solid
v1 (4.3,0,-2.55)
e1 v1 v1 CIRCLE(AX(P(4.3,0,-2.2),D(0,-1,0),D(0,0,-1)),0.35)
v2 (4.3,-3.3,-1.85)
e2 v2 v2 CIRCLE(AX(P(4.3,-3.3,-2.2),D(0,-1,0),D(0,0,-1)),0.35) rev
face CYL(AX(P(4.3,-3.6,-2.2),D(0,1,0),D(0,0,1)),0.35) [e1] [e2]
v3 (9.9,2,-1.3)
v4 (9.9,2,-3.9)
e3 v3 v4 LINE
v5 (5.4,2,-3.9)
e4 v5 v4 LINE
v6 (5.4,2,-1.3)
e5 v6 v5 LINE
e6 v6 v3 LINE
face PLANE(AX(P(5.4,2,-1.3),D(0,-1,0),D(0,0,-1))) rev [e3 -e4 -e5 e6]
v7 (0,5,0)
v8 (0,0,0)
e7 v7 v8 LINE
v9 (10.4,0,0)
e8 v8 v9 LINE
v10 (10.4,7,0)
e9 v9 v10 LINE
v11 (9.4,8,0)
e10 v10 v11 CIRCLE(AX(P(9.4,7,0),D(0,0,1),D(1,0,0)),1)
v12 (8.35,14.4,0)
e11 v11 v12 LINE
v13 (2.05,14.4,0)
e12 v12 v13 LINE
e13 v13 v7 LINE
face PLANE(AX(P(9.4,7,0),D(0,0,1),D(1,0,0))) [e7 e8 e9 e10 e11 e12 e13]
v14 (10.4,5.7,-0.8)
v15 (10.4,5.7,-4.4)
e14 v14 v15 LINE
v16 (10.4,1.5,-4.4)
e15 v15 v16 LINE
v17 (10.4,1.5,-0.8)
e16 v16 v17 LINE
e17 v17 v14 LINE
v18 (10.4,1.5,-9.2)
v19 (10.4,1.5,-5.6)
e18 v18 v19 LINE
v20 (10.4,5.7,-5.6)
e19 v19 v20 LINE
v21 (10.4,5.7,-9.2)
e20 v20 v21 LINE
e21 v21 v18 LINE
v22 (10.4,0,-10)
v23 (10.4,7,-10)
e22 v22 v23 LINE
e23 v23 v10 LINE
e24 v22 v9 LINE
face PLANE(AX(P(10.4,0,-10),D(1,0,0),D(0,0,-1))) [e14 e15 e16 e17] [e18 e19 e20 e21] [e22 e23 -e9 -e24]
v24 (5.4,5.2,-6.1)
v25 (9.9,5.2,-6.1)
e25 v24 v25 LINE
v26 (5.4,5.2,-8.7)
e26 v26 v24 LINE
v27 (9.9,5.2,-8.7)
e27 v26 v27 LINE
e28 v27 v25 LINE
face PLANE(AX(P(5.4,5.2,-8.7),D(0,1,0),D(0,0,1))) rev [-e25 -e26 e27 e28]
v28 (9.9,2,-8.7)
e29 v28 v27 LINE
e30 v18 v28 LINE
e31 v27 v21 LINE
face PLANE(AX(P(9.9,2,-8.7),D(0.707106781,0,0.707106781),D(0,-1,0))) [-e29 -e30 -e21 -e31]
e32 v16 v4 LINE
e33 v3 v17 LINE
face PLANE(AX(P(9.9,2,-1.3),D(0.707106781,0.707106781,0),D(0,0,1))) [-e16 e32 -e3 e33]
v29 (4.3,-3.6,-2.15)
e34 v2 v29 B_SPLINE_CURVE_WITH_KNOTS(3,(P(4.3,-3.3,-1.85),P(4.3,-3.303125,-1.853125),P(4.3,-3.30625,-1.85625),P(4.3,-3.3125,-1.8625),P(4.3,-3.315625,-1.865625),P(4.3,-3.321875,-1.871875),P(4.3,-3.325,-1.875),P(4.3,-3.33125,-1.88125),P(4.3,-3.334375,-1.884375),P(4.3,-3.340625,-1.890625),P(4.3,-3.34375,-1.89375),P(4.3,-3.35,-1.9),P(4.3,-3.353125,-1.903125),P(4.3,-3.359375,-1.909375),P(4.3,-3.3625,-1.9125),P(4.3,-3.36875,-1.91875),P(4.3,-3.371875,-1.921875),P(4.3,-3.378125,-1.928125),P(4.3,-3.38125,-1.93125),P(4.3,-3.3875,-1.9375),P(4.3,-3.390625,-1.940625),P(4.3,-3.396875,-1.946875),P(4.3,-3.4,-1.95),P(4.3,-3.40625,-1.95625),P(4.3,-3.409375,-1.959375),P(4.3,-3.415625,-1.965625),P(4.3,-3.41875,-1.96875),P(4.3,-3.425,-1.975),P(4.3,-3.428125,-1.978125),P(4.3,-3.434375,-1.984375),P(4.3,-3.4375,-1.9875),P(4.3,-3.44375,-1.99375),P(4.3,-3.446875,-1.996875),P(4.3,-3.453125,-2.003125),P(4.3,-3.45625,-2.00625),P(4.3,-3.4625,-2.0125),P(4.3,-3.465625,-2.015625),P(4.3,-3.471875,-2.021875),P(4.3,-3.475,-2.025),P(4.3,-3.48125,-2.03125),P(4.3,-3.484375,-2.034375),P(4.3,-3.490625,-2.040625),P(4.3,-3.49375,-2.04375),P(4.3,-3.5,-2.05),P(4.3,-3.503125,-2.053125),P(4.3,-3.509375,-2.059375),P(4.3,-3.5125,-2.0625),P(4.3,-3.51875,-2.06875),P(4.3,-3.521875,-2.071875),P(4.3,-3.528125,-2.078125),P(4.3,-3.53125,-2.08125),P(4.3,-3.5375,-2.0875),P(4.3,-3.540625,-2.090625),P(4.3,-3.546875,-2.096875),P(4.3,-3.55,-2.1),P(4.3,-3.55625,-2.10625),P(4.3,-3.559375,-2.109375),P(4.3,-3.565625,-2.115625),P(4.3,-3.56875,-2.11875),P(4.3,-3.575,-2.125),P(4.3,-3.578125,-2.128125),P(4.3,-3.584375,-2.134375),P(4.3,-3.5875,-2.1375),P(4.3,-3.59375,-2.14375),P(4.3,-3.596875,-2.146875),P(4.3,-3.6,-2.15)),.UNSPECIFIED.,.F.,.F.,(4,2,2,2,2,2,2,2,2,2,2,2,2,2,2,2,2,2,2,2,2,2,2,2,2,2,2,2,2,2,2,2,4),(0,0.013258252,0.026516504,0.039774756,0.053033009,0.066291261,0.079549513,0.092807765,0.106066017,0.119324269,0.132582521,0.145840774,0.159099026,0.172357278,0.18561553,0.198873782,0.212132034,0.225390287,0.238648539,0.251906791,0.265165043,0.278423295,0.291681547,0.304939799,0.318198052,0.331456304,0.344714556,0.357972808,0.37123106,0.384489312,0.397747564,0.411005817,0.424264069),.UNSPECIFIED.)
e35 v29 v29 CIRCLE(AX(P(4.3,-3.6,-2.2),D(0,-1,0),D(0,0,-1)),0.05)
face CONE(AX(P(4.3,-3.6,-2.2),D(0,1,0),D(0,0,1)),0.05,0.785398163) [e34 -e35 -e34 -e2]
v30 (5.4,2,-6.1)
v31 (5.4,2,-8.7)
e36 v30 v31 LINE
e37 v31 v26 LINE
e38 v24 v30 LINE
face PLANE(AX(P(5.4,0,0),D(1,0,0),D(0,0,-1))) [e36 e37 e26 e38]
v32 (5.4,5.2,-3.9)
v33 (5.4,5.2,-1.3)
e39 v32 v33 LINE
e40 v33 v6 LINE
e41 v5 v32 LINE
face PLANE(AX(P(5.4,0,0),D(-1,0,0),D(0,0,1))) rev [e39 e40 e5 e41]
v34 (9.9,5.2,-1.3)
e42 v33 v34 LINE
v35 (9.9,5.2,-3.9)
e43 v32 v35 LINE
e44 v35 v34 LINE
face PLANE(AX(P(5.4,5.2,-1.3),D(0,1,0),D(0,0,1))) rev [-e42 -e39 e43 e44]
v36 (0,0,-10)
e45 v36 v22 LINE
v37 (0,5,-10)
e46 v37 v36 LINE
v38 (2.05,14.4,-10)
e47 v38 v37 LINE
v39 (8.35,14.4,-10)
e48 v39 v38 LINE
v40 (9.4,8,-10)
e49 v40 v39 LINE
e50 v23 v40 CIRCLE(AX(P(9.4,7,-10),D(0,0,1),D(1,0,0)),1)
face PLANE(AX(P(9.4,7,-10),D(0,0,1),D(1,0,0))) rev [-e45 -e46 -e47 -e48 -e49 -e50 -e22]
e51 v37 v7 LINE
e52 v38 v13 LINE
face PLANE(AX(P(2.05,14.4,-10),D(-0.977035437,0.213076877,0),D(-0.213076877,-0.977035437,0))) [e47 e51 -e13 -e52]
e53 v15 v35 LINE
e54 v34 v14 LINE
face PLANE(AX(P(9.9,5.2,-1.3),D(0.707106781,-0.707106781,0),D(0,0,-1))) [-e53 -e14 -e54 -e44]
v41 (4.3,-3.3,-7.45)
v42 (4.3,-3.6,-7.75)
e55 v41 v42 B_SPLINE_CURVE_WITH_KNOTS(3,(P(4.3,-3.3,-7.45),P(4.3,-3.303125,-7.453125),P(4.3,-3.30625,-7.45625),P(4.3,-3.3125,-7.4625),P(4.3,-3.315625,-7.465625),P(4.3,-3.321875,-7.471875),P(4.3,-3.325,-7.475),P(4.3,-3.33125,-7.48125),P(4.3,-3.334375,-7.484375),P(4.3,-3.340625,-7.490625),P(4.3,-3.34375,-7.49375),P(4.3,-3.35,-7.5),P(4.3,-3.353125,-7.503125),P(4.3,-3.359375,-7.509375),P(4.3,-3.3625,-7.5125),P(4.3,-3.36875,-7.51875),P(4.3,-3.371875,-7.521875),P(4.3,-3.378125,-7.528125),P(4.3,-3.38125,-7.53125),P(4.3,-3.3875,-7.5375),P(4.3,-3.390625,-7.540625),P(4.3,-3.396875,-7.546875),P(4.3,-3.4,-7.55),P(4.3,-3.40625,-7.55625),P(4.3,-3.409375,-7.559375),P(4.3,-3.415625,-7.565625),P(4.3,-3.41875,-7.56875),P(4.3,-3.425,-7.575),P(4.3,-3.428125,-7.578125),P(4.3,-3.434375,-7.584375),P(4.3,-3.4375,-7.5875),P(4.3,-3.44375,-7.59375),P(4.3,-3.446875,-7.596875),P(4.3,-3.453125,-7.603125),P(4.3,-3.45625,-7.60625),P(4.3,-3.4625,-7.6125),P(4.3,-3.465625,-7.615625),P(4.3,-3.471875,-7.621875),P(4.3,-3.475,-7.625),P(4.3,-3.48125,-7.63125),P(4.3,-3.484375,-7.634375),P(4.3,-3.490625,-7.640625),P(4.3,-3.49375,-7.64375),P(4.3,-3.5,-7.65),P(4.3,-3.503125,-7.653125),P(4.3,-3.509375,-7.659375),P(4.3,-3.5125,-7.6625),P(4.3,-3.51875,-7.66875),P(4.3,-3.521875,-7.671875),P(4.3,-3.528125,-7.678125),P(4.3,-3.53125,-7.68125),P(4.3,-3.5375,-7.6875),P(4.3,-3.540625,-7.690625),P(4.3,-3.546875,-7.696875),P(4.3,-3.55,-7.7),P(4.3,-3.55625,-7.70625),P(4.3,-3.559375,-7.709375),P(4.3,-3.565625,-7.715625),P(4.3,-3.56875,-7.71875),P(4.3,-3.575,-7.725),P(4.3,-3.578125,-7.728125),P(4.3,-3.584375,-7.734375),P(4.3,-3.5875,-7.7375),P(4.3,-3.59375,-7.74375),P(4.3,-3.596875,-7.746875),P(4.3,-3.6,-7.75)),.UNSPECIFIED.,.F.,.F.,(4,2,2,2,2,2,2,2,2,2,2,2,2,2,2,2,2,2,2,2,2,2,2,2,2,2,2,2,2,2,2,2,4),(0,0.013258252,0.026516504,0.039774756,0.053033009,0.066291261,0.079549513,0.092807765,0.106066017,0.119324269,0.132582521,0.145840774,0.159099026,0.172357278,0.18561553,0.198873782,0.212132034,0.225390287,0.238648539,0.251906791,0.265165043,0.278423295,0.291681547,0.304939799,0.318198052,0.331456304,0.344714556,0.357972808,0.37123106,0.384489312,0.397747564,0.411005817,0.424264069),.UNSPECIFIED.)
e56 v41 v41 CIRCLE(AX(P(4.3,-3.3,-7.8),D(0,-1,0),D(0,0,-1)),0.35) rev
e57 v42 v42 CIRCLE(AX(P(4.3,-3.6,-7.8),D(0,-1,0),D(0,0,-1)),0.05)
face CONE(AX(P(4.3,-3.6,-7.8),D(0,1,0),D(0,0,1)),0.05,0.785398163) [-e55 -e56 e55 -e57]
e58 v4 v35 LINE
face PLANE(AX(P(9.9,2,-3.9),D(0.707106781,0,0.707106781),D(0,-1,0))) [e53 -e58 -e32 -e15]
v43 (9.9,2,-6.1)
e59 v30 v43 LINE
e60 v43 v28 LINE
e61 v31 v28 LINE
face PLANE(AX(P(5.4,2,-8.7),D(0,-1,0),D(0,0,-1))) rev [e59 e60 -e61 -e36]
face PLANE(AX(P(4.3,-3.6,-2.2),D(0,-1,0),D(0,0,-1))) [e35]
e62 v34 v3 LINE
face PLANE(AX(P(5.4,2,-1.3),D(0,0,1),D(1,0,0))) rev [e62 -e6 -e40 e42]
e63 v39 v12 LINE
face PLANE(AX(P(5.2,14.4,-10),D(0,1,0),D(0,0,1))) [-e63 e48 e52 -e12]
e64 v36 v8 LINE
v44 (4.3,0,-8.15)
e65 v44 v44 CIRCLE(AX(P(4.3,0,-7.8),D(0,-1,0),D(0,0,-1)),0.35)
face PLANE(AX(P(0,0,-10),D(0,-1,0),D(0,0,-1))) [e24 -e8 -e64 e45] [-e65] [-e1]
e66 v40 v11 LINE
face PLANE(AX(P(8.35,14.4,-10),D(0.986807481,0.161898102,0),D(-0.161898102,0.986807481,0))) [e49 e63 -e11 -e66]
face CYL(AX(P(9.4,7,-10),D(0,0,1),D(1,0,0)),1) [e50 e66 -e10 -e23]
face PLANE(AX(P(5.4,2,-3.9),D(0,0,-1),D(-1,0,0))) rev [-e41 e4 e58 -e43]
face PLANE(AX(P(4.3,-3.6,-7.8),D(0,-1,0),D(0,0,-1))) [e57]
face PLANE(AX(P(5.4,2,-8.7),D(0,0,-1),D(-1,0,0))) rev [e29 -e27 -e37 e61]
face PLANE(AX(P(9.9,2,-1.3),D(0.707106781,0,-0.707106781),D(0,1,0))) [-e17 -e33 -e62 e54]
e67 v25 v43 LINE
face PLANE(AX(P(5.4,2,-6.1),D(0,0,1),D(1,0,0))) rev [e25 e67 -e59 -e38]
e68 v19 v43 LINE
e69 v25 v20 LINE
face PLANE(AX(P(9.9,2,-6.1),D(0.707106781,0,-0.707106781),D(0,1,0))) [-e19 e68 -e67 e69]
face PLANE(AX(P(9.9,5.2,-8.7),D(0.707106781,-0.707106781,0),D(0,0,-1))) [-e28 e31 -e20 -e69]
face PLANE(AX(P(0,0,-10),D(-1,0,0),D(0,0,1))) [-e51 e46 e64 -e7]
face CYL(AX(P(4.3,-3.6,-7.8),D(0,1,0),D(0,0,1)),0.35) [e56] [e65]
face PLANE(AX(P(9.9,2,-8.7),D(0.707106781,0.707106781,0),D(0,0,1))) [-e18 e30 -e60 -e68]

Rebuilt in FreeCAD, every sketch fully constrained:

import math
import FreeCAD as App
import Part
import Sketcher
Q = App.Units.Quantity


def edges_at(feature, points):
    """Names of the edges that pass closest to the given points."""
    edges = feature.Shape.Edges
    near = lambda p: min(range(len(edges)), key=lambda i: edges[i].distToShape(Part.Vertex(*p))[0])
    return sorted({f"Edge{near(p) + 1}" for p in points})

doc = App.newDocument("Part")
body = doc.addObject("PartDesign::Body", "Body")

# Sketch on XY plane
sketch1 = body.newObject("Sketcher::SketchObject", "Sketch")
sketch1.AttachmentSupport = (doc.getObject("XY_Plane"), [""])
sketch1.MapMode = "FlatFace"
sketch1.addGeometry([
    Part.LineSegment(App.Vector(0, 0, 0), App.Vector(10.4, 0, 0)),  # 0
    Part.LineSegment(App.Vector(10.4, 0, 0), App.Vector(10.4, 7, 0)),  # 1
    Part.ArcOfCircle(Part.Circle(App.Vector(9.4, 7, 0), App.Vector(0, 0, 1), 1), math.radians(0), math.radians(90)),  # 2
    Part.LineSegment(App.Vector(9.4, 8, 0), App.Vector(8.3, 14.4, 0)),  # 3
    Part.LineSegment(App.Vector(8.3, 14.4, 0), App.Vector(2, 14.4, 0)),  # 4
    Part.LineSegment(App.Vector(2, 14.4, 0), App.Vector(0, 5, 0)),  # 5
    Part.LineSegment(App.Vector(0, 5, 0), App.Vector(0, 0, 0)),  # 6
], False)
sketch1.addConstraint([
    Sketcher.Constraint("Coincident", 0, 2, 1, 1),
    Sketcher.Constraint("Tangent", 1, 2, 2, 1),
    Sketcher.Constraint("Coincident", 2, 2, 3, 1),
    Sketcher.Constraint("Coincident", 3, 2, 4, 1),
    Sketcher.Constraint("Coincident", 4, 2, 5, 1),
    Sketcher.Constraint("Coincident", 5, 2, 6, 1),
    Sketcher.Constraint("Coincident", 6, 2, 0, 1),
    Sketcher.Constraint("Horizontal", 0),
    Sketcher.Constraint("Vertical", 1),
    Sketcher.Constraint("Horizontal", 4),
    Sketcher.Constraint("Vertical", 6),
    Sketcher.Constraint("Coincident", 6, 2, -1, 1),
    Sketcher.Constraint("Radius", 2, Q("1 mm")),
    Sketcher.Constraint("DistanceY", 1, 1, 1, 2, Q("7 mm")),
    Sketcher.Constraint("DistanceY", 6, 2, 6, 1, Q("5 mm")),
    Sketcher.Constraint("DistanceX", 0, 1, 0, 2, Q("10.4 mm")),
    Sketcher.Constraint("DistanceX", 4, 2, 4, 1, Q("6.3 mm")),
    Sketcher.Constraint("DistanceX", 2, 2, 1, 2, Q("1 mm")),
    Sketcher.Constraint("DistanceY", -1, 1, 3, 2, Q("14.4 mm")),
    Sketcher.Constraint("DistanceX", -1, 1, 3, 2, Q("8.35 mm")),
])
pad1 = body.newObject("PartDesign::Pad", "Pad")
pad1.Profile = sketch1
pad1.Length = 10
pad1.Reversed = True

# Sketch on YZ plane
sketch2 = body.newObject("Sketcher::SketchObject", "Sketch001")
sketch2.AttachmentSupport = (doc.getObject("YZ_Plane"), [""])
sketch2.MapMode = "FlatFace"
sketch2.AttachmentOffset = App.Placement(App.Vector(0, 0, 10.4), App.Rotation())
sketch2.addGeometry([
    Part.LineSegment(App.Vector(5.2, -1.3, 0), App.Vector(2, -1.3, 0)),  # 0
    Part.LineSegment(App.Vector(2, -1.3, 0), App.Vector(2, -3.9, 0)),  # 1
    Part.LineSegment(App.Vector(2, -3.9, 0), App.Vector(5.2, -3.9, 0)),  # 2
    Part.LineSegment(App.Vector(5.2, -3.9, 0), App.Vector(5.2, -1.3, 0)),  # 3
    Part.LineSegment(App.Vector(5.2, -6.1, 0), App.Vector(2, -6.1, 0)),  # 4
    Part.LineSegment(App.Vector(2, -6.1, 0), App.Vector(2, -8.7, 0)),  # 5
    Part.LineSegment(App.Vector(2, -8.7, 0), App.Vector(5.2, -8.7, 0)),  # 6
    Part.LineSegment(App.Vector(5.2, -8.7, 0), App.Vector(5.2, -6.1, 0)),  # 7
], False)
sketch2.addConstraint([
    Sketcher.Constraint("Coincident", 0, 2, 1, 1),
    Sketcher.Constraint("Coincident", 1, 2, 2, 1),
    Sketcher.Constraint("Coincident", 2, 2, 3, 1),
    Sketcher.Constraint("Coincident", 3, 2, 0, 1),
    Sketcher.Constraint("Coincident", 4, 2, 5, 1),
    Sketcher.Constraint("Coincident", 5, 2, 6, 1),
    Sketcher.Constraint("Coincident", 6, 2, 7, 1),
    Sketcher.Constraint("Coincident", 7, 2, 4, 1),
    Sketcher.Constraint("Horizontal", 0),
    Sketcher.Constraint("Vertical", 1),
    Sketcher.Constraint("Horizontal", 2),
    Sketcher.Constraint("Vertical", 3),
    Sketcher.Constraint("Horizontal", 4),
    Sketcher.Constraint("Vertical", 5),
    Sketcher.Constraint("Horizontal", 6),
    Sketcher.Constraint("Vertical", 7),
    Sketcher.Constraint("Vertical", 1, 2, 4, 2),
    Sketcher.Constraint("Vertical", 3, 2, 6, 2),
    Sketcher.Constraint("Equal", 3, 5),
    Sketcher.Constraint("DistanceX", 0, 2, 0, 1, Q("3.2 mm")),
    Sketcher.Constraint("DistanceY", 1, 2, 1, 1, Q("2.6 mm")),
    Sketcher.Constraint("DistanceX", -1, 1, 0, 2, Q("2 mm")),
    Sketcher.Constraint("DistanceY", 0, 2, -1, 1, Q("1.3 mm")),
    Sketcher.Constraint("DistanceY", 4, 2, -1, 1, Q("6.1 mm")),
])
pocket1 = body.newObject("PartDesign::Pocket", "Pocket")
pocket1.Profile = sketch2
pocket1.Length = 5
doc.recompute()

chamfer = body.newObject("PartDesign::Chamfer", "Chamfer")
chamfer.Base = (pocket1, edges_at(pocket1, [
    (10.4, 3.6, -1.3),
    (10.4, 2, -2.6),
    (10.4, 3.6, -3.9),
    (10.4, 5.2, -2.6),
]))
chamfer.Size = 0.5
doc.recompute()

chamfer2 = body.newObject("PartDesign::Chamfer", "Chamfer001")
chamfer2.Base = (chamfer, edges_at(chamfer, [
    (10.4, 3.6, -8.7),
    (10.4, 5.2, -7.4),
    (10.4, 3.6, -6.1),
    (10.4, 2, -7.4),
]))
chamfer2.Size = 0.5

# Sketch on XZ plane
sketch3 = body.newObject("Sketcher::SketchObject", "Sketch002")
sketch3.AttachmentSupport = (doc.getObject("XZ_Plane"), [""])
sketch3.MapMode = "FlatFace"
sketch3.addGeometry([
    Part.Circle(App.Vector(4.3, -2.2, 0), App.Vector(0, 0, 1), 0.35),
    Part.Circle(App.Vector(4.3, -7.8, 0), App.Vector(0, 0, 1), 0.35),
], False)
sketch3.addConstraint([
    Sketcher.Constraint("Equal", 0, 1),
    Sketcher.Constraint("Vertical", 0, 3, 1, 3),
    Sketcher.Constraint("Diameter", 0, Q("0.7 mm")),
    Sketcher.Constraint("DistanceX", -1, 1, 0, 3, Q("4.3 mm")),
    Sketcher.Constraint("DistanceY", 0, 3, -1, 1, Q("2.2 mm")),
    Sketcher.Constraint("DistanceY", 1, 3, -1, 1, Q("7.8 mm")),
])
pad2 = body.newObject("PartDesign::Pad", "Pad001")
pad2.Profile = sketch3
pad2.Length = 3.6
doc.recompute()

chamfer3 = body.newObject("PartDesign::Chamfer", "Chamfer002")
chamfer3.Base = (pad2, edges_at(pad2, [(4.3, -3.6, -1.85), (4.3, -3.6, -7.45)]))
chamfer3.Size = 0.3

doc.recompute()
